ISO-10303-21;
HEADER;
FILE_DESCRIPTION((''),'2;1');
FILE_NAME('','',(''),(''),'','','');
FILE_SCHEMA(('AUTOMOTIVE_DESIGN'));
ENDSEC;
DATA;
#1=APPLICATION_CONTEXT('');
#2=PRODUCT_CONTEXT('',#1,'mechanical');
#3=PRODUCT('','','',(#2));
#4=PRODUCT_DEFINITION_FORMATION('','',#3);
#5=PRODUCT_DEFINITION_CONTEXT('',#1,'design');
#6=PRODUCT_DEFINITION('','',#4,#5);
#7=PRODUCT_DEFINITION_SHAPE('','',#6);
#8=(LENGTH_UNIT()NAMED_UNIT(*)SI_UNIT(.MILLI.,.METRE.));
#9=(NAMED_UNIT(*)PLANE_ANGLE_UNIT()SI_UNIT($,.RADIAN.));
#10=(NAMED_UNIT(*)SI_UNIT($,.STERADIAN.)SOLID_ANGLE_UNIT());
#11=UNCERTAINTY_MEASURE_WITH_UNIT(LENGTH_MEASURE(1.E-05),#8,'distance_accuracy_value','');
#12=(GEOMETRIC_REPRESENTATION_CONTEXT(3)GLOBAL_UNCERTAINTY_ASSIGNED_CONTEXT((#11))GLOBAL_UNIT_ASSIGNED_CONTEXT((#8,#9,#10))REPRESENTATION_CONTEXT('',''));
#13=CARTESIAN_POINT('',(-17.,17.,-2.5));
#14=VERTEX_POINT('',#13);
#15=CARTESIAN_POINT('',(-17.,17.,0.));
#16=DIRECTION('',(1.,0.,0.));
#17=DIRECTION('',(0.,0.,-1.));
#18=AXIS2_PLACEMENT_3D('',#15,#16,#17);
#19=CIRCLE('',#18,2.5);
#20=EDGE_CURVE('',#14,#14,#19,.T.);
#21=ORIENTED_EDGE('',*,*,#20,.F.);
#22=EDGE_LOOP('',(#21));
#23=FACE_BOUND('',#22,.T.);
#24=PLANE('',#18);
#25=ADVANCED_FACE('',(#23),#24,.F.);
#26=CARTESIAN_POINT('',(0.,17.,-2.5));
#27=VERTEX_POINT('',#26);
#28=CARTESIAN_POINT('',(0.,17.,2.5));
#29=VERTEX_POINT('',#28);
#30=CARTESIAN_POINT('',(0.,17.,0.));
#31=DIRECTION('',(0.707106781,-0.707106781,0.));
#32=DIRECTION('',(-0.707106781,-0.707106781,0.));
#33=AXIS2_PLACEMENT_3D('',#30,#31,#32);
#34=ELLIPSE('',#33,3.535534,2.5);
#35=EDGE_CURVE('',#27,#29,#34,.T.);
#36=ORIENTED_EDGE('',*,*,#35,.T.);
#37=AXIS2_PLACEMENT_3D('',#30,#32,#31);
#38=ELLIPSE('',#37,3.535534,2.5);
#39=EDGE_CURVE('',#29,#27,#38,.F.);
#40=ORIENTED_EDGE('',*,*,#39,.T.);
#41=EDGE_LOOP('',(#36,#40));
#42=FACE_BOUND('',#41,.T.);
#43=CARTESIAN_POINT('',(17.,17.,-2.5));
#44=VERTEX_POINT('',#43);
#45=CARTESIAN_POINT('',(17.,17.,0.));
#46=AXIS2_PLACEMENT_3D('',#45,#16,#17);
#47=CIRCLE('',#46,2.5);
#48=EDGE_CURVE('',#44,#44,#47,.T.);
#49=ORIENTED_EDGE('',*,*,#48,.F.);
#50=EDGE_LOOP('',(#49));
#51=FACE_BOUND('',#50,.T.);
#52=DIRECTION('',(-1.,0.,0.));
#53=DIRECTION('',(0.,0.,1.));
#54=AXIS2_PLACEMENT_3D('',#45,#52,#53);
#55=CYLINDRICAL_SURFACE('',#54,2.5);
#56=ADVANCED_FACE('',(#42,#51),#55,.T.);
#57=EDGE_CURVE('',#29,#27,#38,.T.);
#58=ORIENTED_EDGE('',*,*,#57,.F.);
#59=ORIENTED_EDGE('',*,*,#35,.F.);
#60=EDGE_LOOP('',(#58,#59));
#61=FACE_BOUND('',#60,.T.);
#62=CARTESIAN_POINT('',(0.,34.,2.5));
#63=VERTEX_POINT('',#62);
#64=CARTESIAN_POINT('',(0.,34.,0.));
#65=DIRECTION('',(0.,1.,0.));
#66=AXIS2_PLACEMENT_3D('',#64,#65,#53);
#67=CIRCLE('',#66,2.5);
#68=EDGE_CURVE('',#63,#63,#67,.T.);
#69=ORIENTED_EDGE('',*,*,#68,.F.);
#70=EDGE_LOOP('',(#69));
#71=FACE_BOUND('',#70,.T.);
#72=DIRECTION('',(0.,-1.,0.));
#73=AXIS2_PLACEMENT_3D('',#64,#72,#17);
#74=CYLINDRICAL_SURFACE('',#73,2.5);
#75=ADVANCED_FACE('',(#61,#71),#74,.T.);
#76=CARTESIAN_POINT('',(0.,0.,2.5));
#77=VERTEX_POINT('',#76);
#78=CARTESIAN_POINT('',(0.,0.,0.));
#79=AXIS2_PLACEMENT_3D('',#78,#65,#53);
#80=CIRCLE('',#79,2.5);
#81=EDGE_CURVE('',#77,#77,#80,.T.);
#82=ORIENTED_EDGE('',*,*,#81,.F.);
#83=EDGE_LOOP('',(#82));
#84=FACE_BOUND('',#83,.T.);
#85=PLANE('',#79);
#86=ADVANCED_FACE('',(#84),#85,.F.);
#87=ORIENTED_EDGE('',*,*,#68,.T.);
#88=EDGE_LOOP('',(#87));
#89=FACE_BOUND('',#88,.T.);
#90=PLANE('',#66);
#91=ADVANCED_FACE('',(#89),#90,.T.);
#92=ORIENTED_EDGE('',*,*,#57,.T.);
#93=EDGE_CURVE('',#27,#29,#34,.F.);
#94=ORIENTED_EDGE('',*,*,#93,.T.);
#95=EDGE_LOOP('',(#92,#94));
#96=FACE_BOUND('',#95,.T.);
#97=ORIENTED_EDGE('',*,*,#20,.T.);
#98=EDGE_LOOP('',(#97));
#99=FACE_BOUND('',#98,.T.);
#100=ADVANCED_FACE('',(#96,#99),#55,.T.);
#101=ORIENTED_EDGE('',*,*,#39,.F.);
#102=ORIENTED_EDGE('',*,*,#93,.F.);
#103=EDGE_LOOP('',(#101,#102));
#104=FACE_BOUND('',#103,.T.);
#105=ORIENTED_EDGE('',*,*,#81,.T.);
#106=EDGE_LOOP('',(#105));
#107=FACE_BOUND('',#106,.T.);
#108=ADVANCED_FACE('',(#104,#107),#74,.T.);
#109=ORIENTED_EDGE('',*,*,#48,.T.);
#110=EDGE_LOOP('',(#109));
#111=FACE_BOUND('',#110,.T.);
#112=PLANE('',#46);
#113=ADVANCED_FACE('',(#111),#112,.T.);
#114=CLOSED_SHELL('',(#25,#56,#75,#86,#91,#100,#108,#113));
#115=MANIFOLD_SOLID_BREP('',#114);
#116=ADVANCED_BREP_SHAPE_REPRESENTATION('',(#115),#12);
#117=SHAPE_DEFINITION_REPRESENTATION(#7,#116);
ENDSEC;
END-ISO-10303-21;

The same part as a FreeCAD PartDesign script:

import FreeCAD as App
import Part
import Sketcher

doc = App.newDocument("Part")
body = doc.addObject("PartDesign::Body", "Body")

# Sketch on XZ plane
sketch1 = body.newObject("Sketcher::SketchObject", "Sketch")
sketch1.AttachmentSupport = (doc.getObject("XZ_Plane"), [""])
sketch1.MapMode = "FlatFace"
sketch1.addGeometry(Part.Circle(App.Vector(0, 0, 0), App.Vector(0, 0, 1), 2.5), False)
sketch1.addConstraint([
    Sketcher.Constraint("Coincident", 0, 3, -1, 1),
    Sketcher.Constraint("Diameter", 0, 5.0),
])
pad1 = body.newObject("PartDesign::Pad", "Pad")
pad1.Profile = sketch1
pad1.Length = 34
pad1.Reversed = True

# Sketch on YZ plane
sketch2 = body.newObject("Sketcher::SketchObject", "Sketch001")
sketch2.AttachmentSupport = (doc.getObject("YZ_Plane"), [""])
sketch2.MapMode = "FlatFace"
sketch2.addGeometry(Part.Circle(App.Vector(17, 0, 0), App.Vector(0, 0, 1), 2.5), False)
sketch2.addConstraint([
    Sketcher.Constraint("PointOnObject", 0, 3, -1),
    Sketcher.Constraint("Diameter", 0, 5.0),
    Sketcher.Constraint("DistanceX", -1, 1, 0, 3, 17.0),
])
pad2 = body.newObject("PartDesign::Pad", "Pad001")
pad2.Profile = sketch2
pad2.Length = 34
pad2.Midplane = True

doc.recompute()
